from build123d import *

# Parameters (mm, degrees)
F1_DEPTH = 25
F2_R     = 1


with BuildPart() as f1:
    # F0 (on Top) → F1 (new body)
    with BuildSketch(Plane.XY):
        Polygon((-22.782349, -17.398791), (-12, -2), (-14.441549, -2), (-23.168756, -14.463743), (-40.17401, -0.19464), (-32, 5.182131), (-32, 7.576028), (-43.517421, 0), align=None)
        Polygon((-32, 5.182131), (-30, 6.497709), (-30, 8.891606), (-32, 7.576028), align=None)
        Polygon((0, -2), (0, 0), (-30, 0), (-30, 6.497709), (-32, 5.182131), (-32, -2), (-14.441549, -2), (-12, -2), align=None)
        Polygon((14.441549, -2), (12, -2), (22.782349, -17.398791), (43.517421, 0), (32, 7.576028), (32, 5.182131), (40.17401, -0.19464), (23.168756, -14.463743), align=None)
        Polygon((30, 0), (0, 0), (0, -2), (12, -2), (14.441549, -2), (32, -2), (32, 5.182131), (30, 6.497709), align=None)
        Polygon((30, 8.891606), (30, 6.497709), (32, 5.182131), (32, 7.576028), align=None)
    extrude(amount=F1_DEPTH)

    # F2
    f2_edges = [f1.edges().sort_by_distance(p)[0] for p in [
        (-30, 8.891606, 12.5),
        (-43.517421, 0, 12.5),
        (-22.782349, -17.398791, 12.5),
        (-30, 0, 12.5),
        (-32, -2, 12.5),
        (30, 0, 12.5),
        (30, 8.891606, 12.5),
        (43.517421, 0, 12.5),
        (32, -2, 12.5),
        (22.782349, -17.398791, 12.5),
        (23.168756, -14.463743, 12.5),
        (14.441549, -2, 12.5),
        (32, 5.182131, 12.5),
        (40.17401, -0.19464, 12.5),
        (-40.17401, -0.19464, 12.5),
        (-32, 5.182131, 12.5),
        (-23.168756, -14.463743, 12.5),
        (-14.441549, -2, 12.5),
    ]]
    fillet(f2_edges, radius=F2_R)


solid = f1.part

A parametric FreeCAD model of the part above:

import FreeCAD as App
import Part
import Sketcher

V = App.Vector
Q = App.Units.Quantity


def edges_at(feature, points):
    """Names of the edges that pass closest to the given points."""
    edges = feature.Shape.Edges
    near = lambda p: min(range(len(edges)), key=lambda i: edges[i].distToShape(Part.Vertex(*p))[0])
    return sorted({f"Edge{near(p) + 1}" for p in points})


def add_polygon(sketch, points):
    """Adds a closed chain of lines whose ends are joined by coincident constraints."""
    first, n = sketch.GeometryCount, len(points)
    for a, b in zip(points, points[1:] + points[:1]):
        sketch.addGeometry(Part.LineSegment(App.Vector(*a, 0), App.Vector(*b, 0)), False)
    for i in range(n):
        sketch.addConstraint(Sketcher.Constraint("Coincident", first + i, 2, first + (i + 1) % n, 1))

doc = App.newDocument("Part")
params = doc.addObject("Spreadsheet::Sheet", "Params")
for row, (alias, value) in enumerate([
    ("sketch1_width", "60 mm"),
    ("sketch1_width2", "24 mm"),
    ("pad1_length", "25 mm"),
    ("fillet_radius", "1 mm"),
], start=1):
    params.set(f"A{row}", alias)
    params.set(f"B{row}", "=" + value)
    params.setAlias(f"B{row}", alias)

body = doc.addObject("PartDesign::Body", "Body")

sketch1 = body.newObject("Sketcher::SketchObject", "Sketch")
sketch1.AttachmentSupport = (doc.getObject("XY_Plane"), [""])
sketch1.MapMode = "FlatFace"
add_polygon(sketch1, [(43.517421, 0), (32, 7.576028), (30, 8.891606), (30, 0), (-30, 0), (-30, 8.891606), (-32, 7.576028), (-43.517421, 0), (-22.782349, -17.398791), (-12, -2), (12, -2), (22.782349, -17.398791)])
add_polygon(sketch1, [(-14.441549, -2), (-23.168756, -14.463743), (-40.17401, -0.19464), (-32, 5.182131), (-32, -2)])
add_polygon(sketch1, [(32, -2), (32, 5.182131), (40.17401, -0.19464), (23.168756, -14.463743), (14.441549, -2)])
sketch1.addConstraint([
    Sketcher.Constraint("Vertical", 2),
    Sketcher.Constraint("Horizontal", 3),
    Sketcher.Constraint("Vertical", 4),
    Sketcher.Constraint("Horizontal", 9),
    Sketcher.Constraint("Vertical", 15),
    Sketcher.Constraint("Horizontal", 16),
    Sketcher.Constraint("Vertical", 17),
    Sketcher.Constraint("Horizontal", 21),
    Sketcher.Constraint("Symmetric", 2, 2, 3, 2, -1, 1),
    Sketcher.Constraint("Symmetric", 6, 2, 11, 2, -1, 1),
    Sketcher.Constraint("Symmetric", 0, 2, 5, 2, -2),
    Sketcher.Constraint("Symmetric", 7, 2, 10, 2, -2),
    Sketcher.Constraint("Symmetric", 14, 2, 17, 2, -2),
    Sketcher.Constraint("Symmetric", 13, 2, 18, 2, -2),
    Sketcher.Constraint("Symmetric", 12, 2, 19, 2, -2),
    Sketcher.Constraint("Symmetric", 16, 2, 20, 2, -2),
    Sketcher.Constraint("PointOnObject", 6, 2, -1),
    Sketcher.Constraint("Parallel", 0, 1),
    Sketcher.Constraint("Parallel", 5, 6),
    Sketcher.Constraint("Parallel", 8, 12),
    Sketcher.Constraint("Parallel", 7, 13),
    Sketcher.Constraint("Parallel", 6, 14),
    Sketcher.Constraint("Parallel", 10, 20),
    Sketcher.Constraint("Horizontal", 9, 2, 15, 2),
    Sketcher.Constraint("Vertical", 5, 2, 14, 2),
    Sketcher.Constraint("DistanceX", 3, 2, 3, 1, 60.0),
    Sketcher.Constraint("DistanceX", 9, 1, 9, 2, 24.0),
    Sketcher.Constraint("Angle", 7, Q("-40 deg")),
    Sketcher.Constraint("Angle", 8, Q("55.000001 deg")),
    Sketcher.Constraint("DistanceX", -1, 1, 0, 2, 32.0),
    Sketcher.Constraint("DistanceY", 8, 2, -1, 1, 2.0),
    Sketcher.Constraint("DistanceX", 16, 1, 16, 2, 17.558451),
    Sketcher.Constraint("DistanceY", 15, 2, 15, 1, 7.182131),
    Sketcher.Constraint("DistanceX", 7, 2, 16, 2, 8.3408),
    Sketcher.Constraint("Distance", 0, 13.78576),
    Sketcher.Constraint("Distance", 12, 15.215421),
])
sketch1.setExpression("Constraints[47]", "Params.sketch1_width")
sketch1.setExpression("Constraints[48]", "Params.sketch1_width2")
pad1 = body.newObject("PartDesign::Pad", "Pad")
pad1.Profile = sketch1
pad1.setExpression("Length", "Params.pad1_length")
doc.recompute()

fillet = body.newObject("PartDesign::Fillet", "Fillet")
fillet.Base = (pad1, edges_at(pad1, [
    (-30, 8.892, 12.5),
    (-43.517, 0, 12.5),
    (-22.782, -17.399, 12.5),
    (-30, 0, 12.5),
    (-32, -2, 12.5),
    (30, 0, 12.5),
    (30, 8.892, 12.5),
    (43.517, 0, 12.5),
    (32, -2, 12.5),
    (22.782, -17.399, 12.5),
    (23.169, -14.464, 12.5),
    (14.442, -2, 12.5),
    (32, 5.182, 12.5),
    (40.174, -0.195, 12.5),
    (-40.174, -0.195, 12.5),
    (-32, 5.182, 12.5),
    (-23.169, -14.464, 12.5),
    (-14.442, -2, 12.5),
]))
fillet.setExpression("Radius", "Params.fillet_radius")

doc.recompute()
